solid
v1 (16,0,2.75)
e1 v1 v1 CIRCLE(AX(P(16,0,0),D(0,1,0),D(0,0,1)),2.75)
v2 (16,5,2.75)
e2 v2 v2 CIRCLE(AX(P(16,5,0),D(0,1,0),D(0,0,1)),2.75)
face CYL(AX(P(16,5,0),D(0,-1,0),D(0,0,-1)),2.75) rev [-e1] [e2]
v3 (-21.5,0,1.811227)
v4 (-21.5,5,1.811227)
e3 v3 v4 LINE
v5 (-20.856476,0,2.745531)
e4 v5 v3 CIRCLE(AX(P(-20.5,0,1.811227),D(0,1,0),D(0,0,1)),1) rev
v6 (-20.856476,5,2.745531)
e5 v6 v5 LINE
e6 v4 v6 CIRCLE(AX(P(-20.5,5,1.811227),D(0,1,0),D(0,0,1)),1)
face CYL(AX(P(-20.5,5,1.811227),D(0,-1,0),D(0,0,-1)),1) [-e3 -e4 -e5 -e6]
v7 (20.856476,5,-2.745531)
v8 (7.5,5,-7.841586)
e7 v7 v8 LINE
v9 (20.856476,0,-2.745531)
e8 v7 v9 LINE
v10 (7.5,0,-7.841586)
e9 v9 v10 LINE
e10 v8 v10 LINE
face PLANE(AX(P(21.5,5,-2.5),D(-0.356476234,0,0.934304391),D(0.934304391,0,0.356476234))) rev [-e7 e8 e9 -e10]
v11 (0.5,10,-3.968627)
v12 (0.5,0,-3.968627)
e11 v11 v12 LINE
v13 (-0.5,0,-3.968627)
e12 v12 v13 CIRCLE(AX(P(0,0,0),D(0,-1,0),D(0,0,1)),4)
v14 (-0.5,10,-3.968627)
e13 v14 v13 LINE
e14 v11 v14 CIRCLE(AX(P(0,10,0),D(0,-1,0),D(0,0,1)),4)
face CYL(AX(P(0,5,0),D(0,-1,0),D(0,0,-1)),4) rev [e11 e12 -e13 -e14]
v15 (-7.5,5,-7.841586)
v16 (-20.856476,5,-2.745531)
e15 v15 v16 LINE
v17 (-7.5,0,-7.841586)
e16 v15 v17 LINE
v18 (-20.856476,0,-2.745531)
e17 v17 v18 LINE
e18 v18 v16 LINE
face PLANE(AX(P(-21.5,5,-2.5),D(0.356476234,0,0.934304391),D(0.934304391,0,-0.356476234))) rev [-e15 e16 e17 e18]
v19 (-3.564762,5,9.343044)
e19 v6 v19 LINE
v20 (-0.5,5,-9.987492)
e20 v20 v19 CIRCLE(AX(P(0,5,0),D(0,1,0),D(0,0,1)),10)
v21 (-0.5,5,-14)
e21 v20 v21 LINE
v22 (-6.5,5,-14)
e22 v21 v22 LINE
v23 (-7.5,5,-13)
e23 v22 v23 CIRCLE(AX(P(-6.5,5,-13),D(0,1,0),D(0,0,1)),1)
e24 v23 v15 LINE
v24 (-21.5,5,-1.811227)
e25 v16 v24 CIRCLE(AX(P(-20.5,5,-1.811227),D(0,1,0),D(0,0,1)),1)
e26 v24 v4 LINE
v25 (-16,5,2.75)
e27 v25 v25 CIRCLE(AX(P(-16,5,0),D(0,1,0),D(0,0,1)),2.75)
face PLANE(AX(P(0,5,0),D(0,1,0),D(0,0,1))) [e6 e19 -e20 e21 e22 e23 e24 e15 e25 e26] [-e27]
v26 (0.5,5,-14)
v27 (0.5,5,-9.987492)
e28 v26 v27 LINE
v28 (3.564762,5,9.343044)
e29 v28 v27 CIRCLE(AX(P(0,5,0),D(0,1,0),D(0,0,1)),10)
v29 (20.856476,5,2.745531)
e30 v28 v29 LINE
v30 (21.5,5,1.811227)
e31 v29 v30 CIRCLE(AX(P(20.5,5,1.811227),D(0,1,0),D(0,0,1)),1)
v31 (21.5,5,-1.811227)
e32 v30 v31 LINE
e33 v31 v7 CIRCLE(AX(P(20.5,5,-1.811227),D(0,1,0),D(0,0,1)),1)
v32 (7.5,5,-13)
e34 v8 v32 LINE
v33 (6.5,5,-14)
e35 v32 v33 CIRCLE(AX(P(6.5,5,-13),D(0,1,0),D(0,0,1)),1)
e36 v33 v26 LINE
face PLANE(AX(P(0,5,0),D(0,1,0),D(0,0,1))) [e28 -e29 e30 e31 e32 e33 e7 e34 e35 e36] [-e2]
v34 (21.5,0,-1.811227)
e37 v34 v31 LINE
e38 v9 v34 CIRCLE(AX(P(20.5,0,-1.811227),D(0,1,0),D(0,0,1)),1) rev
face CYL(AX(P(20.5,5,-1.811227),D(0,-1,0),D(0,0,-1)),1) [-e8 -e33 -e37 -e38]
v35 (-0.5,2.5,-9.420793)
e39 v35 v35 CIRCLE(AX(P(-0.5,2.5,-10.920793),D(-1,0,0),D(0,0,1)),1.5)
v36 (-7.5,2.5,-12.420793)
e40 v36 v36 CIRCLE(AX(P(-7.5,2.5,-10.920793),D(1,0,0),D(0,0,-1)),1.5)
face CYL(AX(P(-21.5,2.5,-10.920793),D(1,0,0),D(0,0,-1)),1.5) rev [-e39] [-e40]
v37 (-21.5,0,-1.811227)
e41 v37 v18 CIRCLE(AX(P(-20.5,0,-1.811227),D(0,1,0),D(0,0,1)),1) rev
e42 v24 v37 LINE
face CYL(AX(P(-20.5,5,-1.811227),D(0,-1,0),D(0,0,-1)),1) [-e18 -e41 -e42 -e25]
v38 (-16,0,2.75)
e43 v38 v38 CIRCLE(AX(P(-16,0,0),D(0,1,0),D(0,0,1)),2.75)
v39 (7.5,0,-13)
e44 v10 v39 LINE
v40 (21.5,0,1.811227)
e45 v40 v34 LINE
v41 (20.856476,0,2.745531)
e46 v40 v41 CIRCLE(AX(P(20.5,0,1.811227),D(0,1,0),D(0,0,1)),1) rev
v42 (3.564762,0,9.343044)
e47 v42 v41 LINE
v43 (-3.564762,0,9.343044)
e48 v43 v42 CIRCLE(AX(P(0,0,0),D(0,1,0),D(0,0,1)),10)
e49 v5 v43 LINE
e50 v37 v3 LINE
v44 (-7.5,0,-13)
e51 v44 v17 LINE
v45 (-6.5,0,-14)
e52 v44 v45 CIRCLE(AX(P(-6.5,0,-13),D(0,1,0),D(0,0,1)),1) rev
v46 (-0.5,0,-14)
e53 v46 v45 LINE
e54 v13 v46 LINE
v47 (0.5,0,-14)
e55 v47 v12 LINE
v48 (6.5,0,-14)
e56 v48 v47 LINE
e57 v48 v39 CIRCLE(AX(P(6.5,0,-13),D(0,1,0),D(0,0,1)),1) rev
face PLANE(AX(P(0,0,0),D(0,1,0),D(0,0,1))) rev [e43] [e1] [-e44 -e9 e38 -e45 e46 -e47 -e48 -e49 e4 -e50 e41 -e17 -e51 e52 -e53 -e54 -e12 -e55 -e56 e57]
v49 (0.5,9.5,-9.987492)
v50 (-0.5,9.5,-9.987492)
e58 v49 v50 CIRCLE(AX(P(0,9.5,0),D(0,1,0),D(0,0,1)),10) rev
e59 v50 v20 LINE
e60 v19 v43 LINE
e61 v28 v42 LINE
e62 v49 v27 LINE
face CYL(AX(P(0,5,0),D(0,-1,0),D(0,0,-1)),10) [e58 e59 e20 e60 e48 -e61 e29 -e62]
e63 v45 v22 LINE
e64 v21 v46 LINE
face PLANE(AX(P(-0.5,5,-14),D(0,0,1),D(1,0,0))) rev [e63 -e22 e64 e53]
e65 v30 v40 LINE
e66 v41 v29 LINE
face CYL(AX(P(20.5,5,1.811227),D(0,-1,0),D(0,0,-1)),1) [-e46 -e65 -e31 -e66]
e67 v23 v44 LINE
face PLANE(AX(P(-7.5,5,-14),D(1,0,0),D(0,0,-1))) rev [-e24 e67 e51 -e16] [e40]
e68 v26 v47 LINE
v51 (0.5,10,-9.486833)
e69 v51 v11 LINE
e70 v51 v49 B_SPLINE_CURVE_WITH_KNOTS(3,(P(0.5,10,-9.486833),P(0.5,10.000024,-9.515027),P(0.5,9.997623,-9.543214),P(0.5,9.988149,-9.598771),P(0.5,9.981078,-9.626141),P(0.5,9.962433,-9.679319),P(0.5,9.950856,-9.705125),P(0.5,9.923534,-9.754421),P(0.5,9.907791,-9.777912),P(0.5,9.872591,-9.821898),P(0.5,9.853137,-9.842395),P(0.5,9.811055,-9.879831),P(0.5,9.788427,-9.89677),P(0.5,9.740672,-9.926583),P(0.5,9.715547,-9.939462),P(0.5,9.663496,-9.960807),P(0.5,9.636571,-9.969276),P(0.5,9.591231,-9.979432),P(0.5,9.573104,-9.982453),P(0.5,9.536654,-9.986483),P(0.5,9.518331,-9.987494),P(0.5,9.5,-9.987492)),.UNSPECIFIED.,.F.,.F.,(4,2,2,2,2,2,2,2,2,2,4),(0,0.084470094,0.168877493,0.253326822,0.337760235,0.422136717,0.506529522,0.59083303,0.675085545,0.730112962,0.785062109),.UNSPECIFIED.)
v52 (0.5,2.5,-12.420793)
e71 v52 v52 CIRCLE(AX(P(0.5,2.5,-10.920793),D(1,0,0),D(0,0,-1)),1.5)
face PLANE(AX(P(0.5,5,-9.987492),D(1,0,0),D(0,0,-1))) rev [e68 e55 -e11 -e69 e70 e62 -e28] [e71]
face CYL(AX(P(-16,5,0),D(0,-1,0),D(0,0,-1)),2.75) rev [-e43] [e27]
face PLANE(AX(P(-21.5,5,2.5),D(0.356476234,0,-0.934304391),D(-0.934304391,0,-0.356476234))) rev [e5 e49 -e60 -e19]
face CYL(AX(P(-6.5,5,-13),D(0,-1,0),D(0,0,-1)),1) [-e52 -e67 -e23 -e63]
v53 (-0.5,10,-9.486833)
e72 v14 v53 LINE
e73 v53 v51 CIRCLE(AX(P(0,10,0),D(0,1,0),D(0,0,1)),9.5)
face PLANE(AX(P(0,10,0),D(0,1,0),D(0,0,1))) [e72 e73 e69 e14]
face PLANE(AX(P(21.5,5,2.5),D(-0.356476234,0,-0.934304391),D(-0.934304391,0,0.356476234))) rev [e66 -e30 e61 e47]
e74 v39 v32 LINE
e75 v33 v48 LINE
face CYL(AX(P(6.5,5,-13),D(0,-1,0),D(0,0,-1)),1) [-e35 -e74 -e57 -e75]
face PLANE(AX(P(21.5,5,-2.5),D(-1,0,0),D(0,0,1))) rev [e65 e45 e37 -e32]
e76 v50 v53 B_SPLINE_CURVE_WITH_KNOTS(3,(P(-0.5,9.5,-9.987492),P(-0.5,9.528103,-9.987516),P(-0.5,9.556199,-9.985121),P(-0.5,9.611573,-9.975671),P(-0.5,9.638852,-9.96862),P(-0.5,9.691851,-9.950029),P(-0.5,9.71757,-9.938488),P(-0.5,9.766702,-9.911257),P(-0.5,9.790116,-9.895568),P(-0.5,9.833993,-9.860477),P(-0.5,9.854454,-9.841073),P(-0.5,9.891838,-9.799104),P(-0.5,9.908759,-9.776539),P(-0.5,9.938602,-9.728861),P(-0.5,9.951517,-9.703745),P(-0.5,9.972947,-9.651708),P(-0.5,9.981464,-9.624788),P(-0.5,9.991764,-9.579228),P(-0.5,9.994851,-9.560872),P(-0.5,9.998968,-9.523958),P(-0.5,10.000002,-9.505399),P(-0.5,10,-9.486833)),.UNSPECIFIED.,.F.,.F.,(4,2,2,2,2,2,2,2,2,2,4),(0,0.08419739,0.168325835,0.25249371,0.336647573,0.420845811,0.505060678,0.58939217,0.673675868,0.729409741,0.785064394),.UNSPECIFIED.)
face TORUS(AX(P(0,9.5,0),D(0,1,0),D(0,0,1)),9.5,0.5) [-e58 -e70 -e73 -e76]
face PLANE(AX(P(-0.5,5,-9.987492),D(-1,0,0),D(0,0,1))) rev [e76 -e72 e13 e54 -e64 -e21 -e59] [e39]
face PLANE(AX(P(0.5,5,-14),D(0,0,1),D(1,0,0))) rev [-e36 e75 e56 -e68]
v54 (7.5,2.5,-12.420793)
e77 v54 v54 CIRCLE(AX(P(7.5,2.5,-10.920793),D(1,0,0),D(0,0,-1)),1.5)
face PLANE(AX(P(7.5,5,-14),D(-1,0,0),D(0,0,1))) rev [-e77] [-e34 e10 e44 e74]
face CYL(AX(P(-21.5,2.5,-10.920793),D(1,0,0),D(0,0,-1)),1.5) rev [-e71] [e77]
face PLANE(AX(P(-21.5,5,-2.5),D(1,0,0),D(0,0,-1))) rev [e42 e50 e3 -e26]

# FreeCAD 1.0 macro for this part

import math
import FreeCAD as App
import Part
import Sketcher

V = App.Vector
Q = App.Units.Quantity


def edges_at(feature, points):
    """Names of the edges that pass closest to the given points."""
    edges = feature.Shape.Edges
    near = lambda p: min(range(len(edges)), key=lambda i: edges[i].distToShape(Part.Vertex(*p))[0])
    return sorted({f"Edge{near(p) + 1}" for p in points})

doc = App.newDocument("Part")
body = doc.addObject("PartDesign::Body", "Body")

sketch1 = body.newObject("Sketcher::SketchObject", "Sketch")
sketch1.AttachmentSupport = (doc.getObject("XZ_Plane"), [""])
sketch1.MapMode = "FlatFace"
sketch1.addGeometry([
    Part.LineSegment(V(-21.5, -2.5, 0), V(-21.5, 2.5, 0)),
    Part.LineSegment(V(-21.5, 2.5, 0), V(-3.564762, 9.343044, 0)),
    Part.ArcOfCircle(Part.Circle(V(0, 0, 0), V(0, 0, 1), 10), math.radians(69.116054), math.radians(110.883946)),
    Part.LineSegment(V(3.564762, 9.343044, 0), V(21.5, 2.5, 0)),
    Part.LineSegment(V(21.5, 2.5, 0), V(21.5, -2.5, 0)),
    Part.LineSegment(V(21.5, -2.5, 0), V(7.5, -7.841586, 0)),
    Part.LineSegment(V(7.5, -7.841586, 0), V(7.5, -14, 0)),
    Part.LineSegment(V(7.5, -14, 0), V(0.5, -14, 0)),
    Part.LineSegment(V(0.5, -14, 0), V(0.5, -3.968627, 0)),
    Part.ArcOfCircle(Part.Circle(V(0, 0, 0), V(0, 0, 1), 4), math.radians(-82.819244), math.radians(262.819244)),
    Part.LineSegment(V(-0.5, -3.968627, 0), V(-0.5, -14, 0)),
    Part.LineSegment(V(-0.5, -14, 0), V(-7.5, -14, 0)),
    Part.LineSegment(V(-7.5, -14, 0), V(-7.5, -7.841586, 0)),
    Part.LineSegment(V(-7.5, -7.841586, 0), V(-21.5, -2.5, 0)),
    Part.Circle(V(-16, 0, 0), V(0, 0, 1), 2.75),
    Part.Circle(V(16, 0, 0), V(0, 0, 1), 2.75),
], False)
sketch1.addConstraint([
    Sketcher.Constraint("Coincident", 0, 2, 1, 1),
    Sketcher.Constraint("Tangent", 1, 2, 2, 2),
    Sketcher.Constraint("Tangent", 2, 1, 3, 1),
    Sketcher.Constraint("Coincident", 3, 2, 4, 1),
    Sketcher.Constraint("Coincident", 4, 2, 5, 1),
    Sketcher.Constraint("Coincident", 5, 2, 6, 1),
    Sketcher.Constraint("Coincident", 6, 2, 7, 1),
    Sketcher.Constraint("Coincident", 7, 2, 8, 1),
    Sketcher.Constraint("Coincident", 8, 2, 9, 1),
    Sketcher.Constraint("Coincident", 9, 2, 10, 1),
    Sketcher.Constraint("Coincident", 10, 2, 11, 1),
    Sketcher.Constraint("Coincident", 11, 2, 12, 1),
    Sketcher.Constraint("Coincident", 12, 2, 13, 1),
    Sketcher.Constraint("Coincident", 13, 2, 0, 1),
    Sketcher.Constraint("Vertical", 0),
    Sketcher.Constraint("Vertical", 4),
    Sketcher.Constraint("Vertical", 6),
    Sketcher.Constraint("Horizontal", 7),
    Sketcher.Constraint("Vertical", 8),
    Sketcher.Constraint("Vertical", 10),
    Sketcher.Constraint("Horizontal", 11),
    Sketcher.Constraint("Vertical", 12),
    Sketcher.Constraint("Coincident", 2, 3, -1, 1),
    Sketcher.Constraint("Coincident", 9, 3, -1, 1),
    Sketcher.Constraint("Equal", 14, 15),
    Sketcher.Constraint("Symmetric", 14, 3, 15, 3, -1, 1),
    Sketcher.Constraint("Symmetric", 0, 2, 4, 2, -1, 1),
    Sketcher.Constraint("Symmetric", 7, 2, 10, 2, -2),
    Sketcher.Constraint("Symmetric", 5, 2, 12, 2, -2),
    Sketcher.Constraint("PointOnObject", 14, 3, -1),
    Sketcher.Constraint("Parallel", 1, 5),
    Sketcher.Constraint("Parallel", 3, 13),
    Sketcher.Constraint("Horizontal", 1, 2, 2, 1),
    Sketcher.Constraint("Radius", 2, Q("10 mm")),
    Sketcher.Constraint("Radius", 9, Q("4 mm")),
    Sketcher.Constraint("Diameter", 14, Q("5.5 mm")),
    Sketcher.Constraint("DistanceX", 7, 2, 7, 1, Q("7 mm")),
    Sketcher.Constraint("DistanceY", 0, 1, 0, 2, Q("5 mm")),
    Sketcher.Constraint("DistanceX", 14, 3, -1, 1, Q("16 mm")),
    Sketcher.Constraint("DistanceY", 6, 2, -1, 1, Q("14 mm")),
    Sketcher.Constraint("DistanceX", 5, 2, 4, 2, Q("14 mm")),
    Sketcher.Constraint("DistanceX", 9, 2, 8, 2, Q("1 mm")),
])
pad1 = body.newObject("PartDesign::Pad", "Pad")
pad1.Profile = sketch1
pad1.Length = 5
pad1.Reversed = True

sketch2 = body.newObject("Sketcher::SketchObject", "Sketch001")
sketch2.AttachmentSupport = (doc.getObject("XZ_Plane"), [""])
sketch2.MapMode = "FlatFace"
sketch2.AttachmentOffset = App.Placement(V(0, 0, -5), App.Rotation())
sketch2.addGeometry([
    Part.LineSegment(V(-0.5, -3.968627, 0), V(-0.5, -9.987492, 0)),
    Part.ArcOfCircle(Part.Circle(V(0, 0, 0), V(0, 0, 1), 10), math.radians(-87.134016), math.radians(267.134016)),
    Part.LineSegment(V(0.5, -9.987492, 0), V(0.5, -3.968627, 0)),
    Part.ArcOfCircle(Part.Circle(V(0, 0, 0), V(0, 0, 1), 4), math.radians(-82.819244), math.radians(262.819244)),
], False)
sketch2.addConstraint([
    Sketcher.Constraint("Coincident", 0, 2, 1, 2),
    Sketcher.Constraint("Coincident", 1, 1, 2, 1),
    Sketcher.Constraint("Coincident", 2, 2, 3, 1),
    Sketcher.Constraint("Coincident", 3, 2, 0, 1),
    Sketcher.Constraint("Vertical", 0),
    Sketcher.Constraint("Vertical", 2),
    Sketcher.Constraint("Coincident", 1, 3, -1, 1),
    Sketcher.Constraint("Coincident", 3, 3, -1, 1),
    Sketcher.Constraint("Horizontal", 0, 2, 1, 1),
    Sketcher.Constraint("Radius", 1, Q("10 mm")),
    Sketcher.Constraint("Radius", 3, Q("4 mm")),
    Sketcher.Constraint("DistanceX", 0, 2, 1, 1, Q("1 mm")),
])
pad2 = body.newObject("PartDesign::Pad", "Pad001")
pad2.Profile = sketch2
pad2.Length = 5
pad2.Reversed = True
doc.recompute()

fillet = body.newObject("PartDesign::Fillet", "Fillet")
fillet.Base = (pad2, edges_at(pad2, [(0, 10, 10)]))
fillet.Radius = 0.5
doc.recompute()

fillet2 = body.newObject("PartDesign::Fillet", "Fillet001")
fillet2.Base = (fillet, edges_at(fillet, [(21.5, 2.5, 2.5)]))
fillet2.Radius = 1
doc.recompute()

fillet3 = body.newObject("PartDesign::Fillet", "Fillet002")
fillet3.Base = (fillet2, edges_at(fillet2, [(-21.5, 2.5, -2.5), (-21.5, 2.5, 2.5), (21.5, 2.5, -2.5)]))
fillet3.Radius = 1

sketch3 = body.newObject("Sketcher::SketchObject", "Sketch002")
sketch3.AttachmentSupport = (doc.getObject("YZ_Plane"), [""])
sketch3.MapMode = "FlatFace"
sketch3.AttachmentOffset = App.Placement(V(0, 0, 7.5), App.Rotation())
sketch3.addGeometry(Part.Circle(V(2.5, -10.920793, 0), V(0, 0, 1), 1.5), False)
sketch3.addConstraint([
    Sketcher.Constraint("Diameter", 0, Q("3 mm")),
    Sketcher.Constraint("DistanceX", -1, 1, 0, 3, Q("2.5 mm")),
    Sketcher.Constraint("DistanceY", 0, 3, -1, 1, Q("10.920793 mm")),
])
pocket1 = body.newObject("PartDesign::Pocket", "Pocket")
pocket1.Profile = sketch3
pocket1.Type = "ThroughAll"
doc.recompute()

fillet4 = body.newObject("PartDesign::Fillet", "Fillet003")
fillet4.Base = (pocket1, edges_at(pocket1, [(7.5, 2.5, -14), (-7.5, 2.5, -14)]))
fillet4.Radius = 1

doc.recompute()
